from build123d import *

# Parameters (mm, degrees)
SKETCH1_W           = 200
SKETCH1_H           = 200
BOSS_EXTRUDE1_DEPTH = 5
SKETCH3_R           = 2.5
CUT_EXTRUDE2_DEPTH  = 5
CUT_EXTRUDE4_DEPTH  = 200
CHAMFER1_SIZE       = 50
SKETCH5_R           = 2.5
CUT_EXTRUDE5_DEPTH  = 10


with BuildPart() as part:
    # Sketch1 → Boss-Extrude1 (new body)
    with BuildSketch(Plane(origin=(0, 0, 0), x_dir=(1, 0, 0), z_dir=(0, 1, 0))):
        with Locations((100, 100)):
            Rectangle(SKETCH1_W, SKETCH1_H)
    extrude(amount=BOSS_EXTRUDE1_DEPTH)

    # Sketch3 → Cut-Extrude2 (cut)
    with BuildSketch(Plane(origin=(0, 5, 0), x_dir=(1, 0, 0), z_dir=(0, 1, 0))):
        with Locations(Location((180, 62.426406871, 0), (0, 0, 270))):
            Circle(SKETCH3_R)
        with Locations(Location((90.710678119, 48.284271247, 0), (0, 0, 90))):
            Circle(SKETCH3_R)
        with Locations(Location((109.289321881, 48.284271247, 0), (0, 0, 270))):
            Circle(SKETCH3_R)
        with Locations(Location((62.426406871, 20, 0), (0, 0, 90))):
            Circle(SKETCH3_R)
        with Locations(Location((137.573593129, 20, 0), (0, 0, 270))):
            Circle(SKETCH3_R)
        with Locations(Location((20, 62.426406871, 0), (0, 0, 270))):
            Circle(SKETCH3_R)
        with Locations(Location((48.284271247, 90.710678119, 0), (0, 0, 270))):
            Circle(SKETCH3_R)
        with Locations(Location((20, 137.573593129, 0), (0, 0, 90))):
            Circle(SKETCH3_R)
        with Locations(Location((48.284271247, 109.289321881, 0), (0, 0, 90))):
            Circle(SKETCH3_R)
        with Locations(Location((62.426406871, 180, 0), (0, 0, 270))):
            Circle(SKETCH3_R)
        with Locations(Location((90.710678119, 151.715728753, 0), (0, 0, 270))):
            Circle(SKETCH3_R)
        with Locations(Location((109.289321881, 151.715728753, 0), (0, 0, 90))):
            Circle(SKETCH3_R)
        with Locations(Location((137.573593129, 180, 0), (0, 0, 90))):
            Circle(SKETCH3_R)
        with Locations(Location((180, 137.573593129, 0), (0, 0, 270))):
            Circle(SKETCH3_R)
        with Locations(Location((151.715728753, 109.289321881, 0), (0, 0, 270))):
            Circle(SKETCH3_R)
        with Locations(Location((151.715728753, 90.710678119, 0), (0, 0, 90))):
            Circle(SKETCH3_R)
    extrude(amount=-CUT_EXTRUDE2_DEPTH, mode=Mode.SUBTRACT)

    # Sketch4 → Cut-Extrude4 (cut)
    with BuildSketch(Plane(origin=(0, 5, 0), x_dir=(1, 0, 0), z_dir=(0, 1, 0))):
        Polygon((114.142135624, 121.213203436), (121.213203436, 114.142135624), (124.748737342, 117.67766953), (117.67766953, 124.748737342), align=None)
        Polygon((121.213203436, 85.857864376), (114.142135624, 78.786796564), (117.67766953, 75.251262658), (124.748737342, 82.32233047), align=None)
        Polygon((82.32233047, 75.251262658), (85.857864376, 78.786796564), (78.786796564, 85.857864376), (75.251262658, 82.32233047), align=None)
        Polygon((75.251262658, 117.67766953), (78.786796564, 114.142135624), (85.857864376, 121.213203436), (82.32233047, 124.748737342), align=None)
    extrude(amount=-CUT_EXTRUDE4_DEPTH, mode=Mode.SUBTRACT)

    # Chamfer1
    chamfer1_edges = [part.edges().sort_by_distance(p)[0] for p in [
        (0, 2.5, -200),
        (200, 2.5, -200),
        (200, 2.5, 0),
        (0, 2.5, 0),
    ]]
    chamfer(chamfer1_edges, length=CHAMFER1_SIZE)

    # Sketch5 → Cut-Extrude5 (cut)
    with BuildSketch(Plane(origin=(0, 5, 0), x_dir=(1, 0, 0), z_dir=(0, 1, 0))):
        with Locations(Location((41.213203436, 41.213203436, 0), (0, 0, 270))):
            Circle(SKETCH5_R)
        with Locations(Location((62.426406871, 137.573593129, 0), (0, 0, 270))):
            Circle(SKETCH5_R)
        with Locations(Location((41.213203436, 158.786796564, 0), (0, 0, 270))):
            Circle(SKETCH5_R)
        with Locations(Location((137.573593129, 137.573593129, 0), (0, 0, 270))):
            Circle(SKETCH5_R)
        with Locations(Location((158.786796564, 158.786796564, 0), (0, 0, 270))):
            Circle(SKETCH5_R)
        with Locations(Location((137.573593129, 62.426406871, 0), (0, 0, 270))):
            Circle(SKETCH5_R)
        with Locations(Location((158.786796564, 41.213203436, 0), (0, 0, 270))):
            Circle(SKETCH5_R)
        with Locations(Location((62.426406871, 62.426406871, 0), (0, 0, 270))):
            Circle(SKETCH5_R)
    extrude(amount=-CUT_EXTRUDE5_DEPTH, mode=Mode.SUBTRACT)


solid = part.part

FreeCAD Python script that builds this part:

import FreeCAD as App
import Part
import Sketcher

V = App.Vector


def edges_at(feature, points):
    """Names of the edges that pass closest to the given points."""
    edges = feature.Shape.Edges
    near = lambda p: min(range(len(edges)), key=lambda i: edges[i].distToShape(Part.Vertex(*p))[0])
    return sorted({f"Edge{near(p) + 1}" for p in points})


def add_polygon(sketch, points):
    """Adds a closed chain of lines whose ends are joined by coincident constraints."""
    first, n = sketch.GeometryCount, len(points)
    for a, b in zip(points, points[1:] + points[:1]):
        sketch.addGeometry(Part.LineSegment(App.Vector(*a, 0), App.Vector(*b, 0)), False)
    for i in range(n):
        sketch.addConstraint(Sketcher.Constraint("Coincident", first + i, 2, first + (i + 1) % n, 1))

doc = App.newDocument("Part")
params = doc.addObject("Spreadsheet::Sheet", "Params")
for row, (alias, value) in enumerate([
    ("sketch1_width", "200 mm"),
    ("pad1_length", "5 mm"),
    ("sketch2_diameter", "5 mm"),
    ("pocket1_length", "5 mm"),
    ("sketch3_length", "10 mm"),
    ("sketch3_length2", "5 mm"),
    ("pocket2_length", "200 mm"),
    ("chamfer_size", "50 mm"),
    ("sketch4_diameter", "5 mm"),
    ("pocket3_length", "10 mm"),
], start=1):
    params.set(f"A{row}", alias)
    params.set(f"B{row}", "=" + value)
    params.setAlias(f"B{row}", alias)

body = doc.addObject("PartDesign::Body", "Body")

# Sketch on XZ plane
sketch1 = body.newObject("Sketcher::SketchObject", "Sketch")
sketch1.AttachmentSupport = (doc.getObject("XZ_Plane"), [""])
sketch1.MapMode = "FlatFace"
add_polygon(sketch1, [(0, -200), (0, 0), (200, 0), (200, -200)])  # lines 0-3
sketch1.addConstraint([
    Sketcher.Constraint("Vertical", 0),
    Sketcher.Constraint("Horizontal", 1),
    Sketcher.Constraint("Vertical", 2),
    Sketcher.Constraint("Horizontal", 3),
    Sketcher.Constraint("Coincident", 0, 2, -1, 1),
    Sketcher.Constraint("Equal", 3, 0),
    Sketcher.Constraint("DistanceX", 1, 1, 1, 2, 200.0),
])
sketch1.setExpression("Constraints[10]", "Params.sketch1_width")
pad1 = body.newObject("PartDesign::Pad", "Pad")
pad1.Profile = sketch1
pad1.setExpression("Length", "Params.pad1_length")
pad1.Reversed = True

# Sketch on XZ plane
sketch2 = body.newObject("Sketcher::SketchObject", "Sketch001")
sketch2.AttachmentSupport = (doc.getObject("XZ_Plane"), [""])
sketch2.MapMode = "FlatFace"
sketch2.AttachmentOffset = App.Placement(V(0, 0, -5), App.Rotation())
sketch2.addGeometry([
    Part.Circle(V(180, -62.4, 0), V(0, 0, 1), 2.5),  # 0
    Part.Circle(V(90.7, -48.3, 0), V(0, 0, 1), 2.5),  # 1
    Part.Circle(V(109.3, -48.3, 0), V(0, 0, 1), 2.5),  # 2
    Part.Circle(V(62.4, -20, 0), V(0, 0, 1), 2.5),  # 3
    Part.Circle(V(137.6, -20, 0), V(0, 0, 1), 2.5),  # 4
    Part.Circle(V(20, -62.4, 0), V(0, 0, 1), 2.5),  # 5
    Part.Circle(V(48.3, -90.7, 0), V(0, 0, 1), 2.5),  # 6
    Part.Circle(V(20, -137.6, 0), V(0, 0, 1), 2.5),  # 7
    Part.Circle(V(48.3, -109.3, 0), V(0, 0, 1), 2.5),  # 8
    Part.Circle(V(62.4, -180, 0), V(0, 0, 1), 2.5),  # 9
    Part.Circle(V(90.7, -151.7, 0), V(0, 0, 1), 2.5),  # 10
    Part.Circle(V(109.3, -151.7, 0), V(0, 0, 1), 2.5),  # 11
    Part.Circle(V(137.6, -180, 0), V(0, 0, 1), 2.5),  # 12
    Part.Circle(V(180, -137.6, 0), V(0, 0, 1), 2.5),  # 13
    Part.Circle(V(151.7, -109.3, 0), V(0, 0, 1), 2.5),  # 14
    Part.Circle(V(151.7, -90.7, 0), V(0, 0, 1), 2.5),  # 15
], False)
sketch2.addConstraint([
    Sketcher.Constraint("Equal", 0, 1),
    Sketcher.Constraint("Equal", 1, 2),
    Sketcher.Constraint("Equal", 2, 3),
    Sketcher.Constraint("Equal", 3, 4),
    Sketcher.Constraint("Equal", 4, 5),
    Sketcher.Constraint("Equal", 5, 6),
    Sketcher.Constraint("Equal", 6, 7),
    Sketcher.Constraint("Equal", 7, 8),
    Sketcher.Constraint("Equal", 8, 9),
    Sketcher.Constraint("Equal", 9, 10),
    Sketcher.Constraint("Equal", 10, 11),
    Sketcher.Constraint("Equal", 11, 12),
    Sketcher.Constraint("Equal", 12, 13),
    Sketcher.Constraint("Equal", 13, 14),
    Sketcher.Constraint("Equal", 14, 15),
    Sketcher.Constraint("Horizontal", 1, 3, 2, 3),
    Sketcher.Constraint("Horizontal", 3, 3, 4, 3),
    Sketcher.Constraint("Horizontal", 0, 3, 5, 3),
    Sketcher.Constraint("Horizontal", 10, 3, 11, 3),
    Sketcher.Constraint("Horizontal", 9, 3, 12, 3),
    Sketcher.Constraint("Horizontal", 7, 3, 13, 3),
    Sketcher.Constraint("Horizontal", 8, 3, 14, 3),
    Sketcher.Constraint("Horizontal", 6, 3, 15, 3),
    Sketcher.Constraint("Vertical", 5, 3, 7, 3),
    Sketcher.Constraint("Vertical", 6, 3, 8, 3),
    Sketcher.Constraint("Vertical", 3, 3, 9, 3),
    Sketcher.Constraint("Vertical", 1, 3, 10, 3),
    Sketcher.Constraint("Vertical", 2, 3, 11, 3),
    Sketcher.Constraint("Vertical", 4, 3, 12, 3),
    Sketcher.Constraint("Vertical", 0, 3, 13, 3),
    Sketcher.Constraint("Vertical", 14, 3, 15, 3),
    Sketcher.Constraint("Diameter", 0, 5.0),
    Sketcher.Constraint("DistanceX", -1, 1, 0, 3, 180.0),
    Sketcher.Constraint("DistanceY", 3, 3, -1, 1, 20.0),
    Sketcher.Constraint("DistanceX", -1, 1, 5, 3, 20.0),
    Sketcher.Constraint("DistanceY", 9, 3, -1, 1, 180.0),
    Sketcher.Constraint("DistanceX", -1, 1, 1, 3, 90.710678),
    Sketcher.Constraint("DistanceY", 1, 3, -1, 1, 48.284271),
    Sketcher.Constraint("DistanceX", -1, 1, 2, 3, 109.289322),
    Sketcher.Constraint("DistanceX", -1, 1, 6, 3, 48.284271),
    Sketcher.Constraint("DistanceY", 6, 3, -1, 1, 90.710678),
    Sketcher.Constraint("DistanceY", 8, 3, -1, 1, 109.289322),
    Sketcher.Constraint("DistanceY", 10, 3, -1, 1, 151.715729),
    Sketcher.Constraint("DistanceX", -1, 1, 14, 3, 151.715729),
    Sketcher.Constraint("DistanceX", 3, 3, 1, 3, 28.284271),
    Sketcher.Constraint("DistanceX", 2, 3, 4, 3, 28.284271),
    Sketcher.Constraint("DistanceY", 6, 3, 5, 3, 28.284271),
    Sketcher.Constraint("DistanceY", 7, 3, 1, 3, 89.289322),
])
sketch2.setExpression("Constraints[31]", "Params.sketch2_diameter")
pocket1 = body.newObject("PartDesign::Pocket", "Pocket")
pocket1.Profile = sketch2
pocket1.setExpression("Length", "Params.pocket1_length")
pocket1.Reversed = True

# Sketch on XZ plane
sketch3 = body.newObject("Sketcher::SketchObject", "Sketch002")
sketch3.AttachmentSupport = (doc.getObject("XZ_Plane"), [""])
sketch3.MapMode = "FlatFace"
sketch3.AttachmentOffset = App.Placement(V(0, 0, -5), App.Rotation())
add_polygon(sketch3, [(114, -121), (121, -114), (125, -118), (118, -125)])  # lines 0-3
add_polygon(sketch3, [(121, -86), (114, -79), (118, -75), (125, -82)])  # lines 4-7
add_polygon(sketch3, [(82, -75), (86, -79), (79, -86), (75, -82)])  # lines 8-11
add_polygon(sketch3, [(75, -118), (79, -114), (86, -121), (82, -125)])  # lines 12-15
sketch3.addConstraint([
    Sketcher.Constraint("Perpendicular", 0, 1),
    Sketcher.Constraint("Perpendicular", 1, 2),
    Sketcher.Constraint("Perpendicular", 2, 3),
    Sketcher.Constraint("Parallel", 3, 4),
    Sketcher.Constraint("Perpendicular", 4, 5),
    Sketcher.Constraint("Perpendicular", 5, 6),
    Sketcher.Constraint("Perpendicular", 6, 7),
    Sketcher.Constraint("Perpendicular", 7, 8),
    Sketcher.Constraint("Perpendicular", 8, 9),
    Sketcher.Constraint("Perpendicular", 9, 10),
    Sketcher.Constraint("Perpendicular", 10, 11),
    Sketcher.Constraint("Parallel", 11, 12),
    Sketcher.Constraint("Perpendicular", 12, 13),
    Sketcher.Constraint("Perpendicular", 13, 14),
    Sketcher.Constraint("Perpendicular", 14, 15),
    Sketcher.Constraint("Horizontal", 4, 2, 8, 2),
    Sketcher.Constraint("Horizontal", 7, 2, 9, 2),
    Sketcher.Constraint("Horizontal", 6, 2, 10, 2),
    Sketcher.Constraint("Horizontal", 0, 2, 12, 2),
    Sketcher.Constraint("Horizontal", 3, 2, 13, 2),
    Sketcher.Constraint("Horizontal", 2, 2, 14, 2),
    Sketcher.Constraint("Vertical", 3, 2, 4, 2),
    Sketcher.Constraint("Vertical", 2, 2, 5, 2),
    Sketcher.Constraint("Vertical", 1, 2, 6, 2),
    Sketcher.Constraint("Vertical", 9, 2, 12, 2),
    Sketcher.Constraint("Vertical", 8, 2, 13, 2),
    Sketcher.Constraint("Distance", 0, 10.0),
    Sketcher.Constraint("Distance", 1, 5.0),
    Sketcher.Constraint("DistanceY", 1, 2, -1, 1, 117.67767),
    Sketcher.Constraint("DistanceX", -1, 1, 2, 2, 117.67767),
    Sketcher.Constraint("DistanceY", 6, 2, -1, 1, 82.32233),
    Sketcher.Constraint("DistanceX", -1, 1, 11, 2, 82.32233),
])
sketch3.setExpression("Constraints[42]", "Params.sketch3_length")
sketch3.setExpression("Constraints[43]", "Params.sketch3_length2")
pocket2 = body.newObject("PartDesign::Pocket", "Pocket001")
pocket2.Profile = sketch3
pocket2.setExpression("Length", "Params.pocket2_length")
pocket2.Reversed = True
doc.recompute()

chamfer = body.newObject("PartDesign::Chamfer", "Chamfer")
chamfer.Base = (pocket2, edges_at(pocket2, [
    (0, 2.5, -200),
    (200, 2.5, -200),
    (200, 2.5, 0),
    (0, 2.5, 0),
]))
chamfer.setExpression("Size", "Params.chamfer_size")

# Sketch on XZ plane
sketch4 = body.newObject("Sketcher::SketchObject", "Sketch003")
sketch4.AttachmentSupport = (doc.getObject("XZ_Plane"), [""])
sketch4.MapMode = "FlatFace"
sketch4.AttachmentOffset = App.Placement(V(0, 0, -5), App.Rotation())
sketch4.addGeometry([
    Part.Circle(V(41.2, -41.2, 0), V(0, 0, 1), 2.5),  # 0
    Part.Circle(V(62.4, -137.6, 0), V(0, 0, 1), 2.5),  # 1
    Part.Circle(V(41.2, -158.8, 0), V(0, 0, 1), 2.5),  # 2
    Part.Circle(V(137.6, -137.6, 0), V(0, 0, 1), 2.5),  # 3
    Part.Circle(V(158.8, -158.8, 0), V(0, 0, 1), 2.5),  # 4
    Part.Circle(V(137.6, -62.4, 0), V(0, 0, 1), 2.5),  # 5
    Part.Circle(V(158.8, -41.2, 0), V(0, 0, 1), 2.5),  # 6
    Part.Circle(V(62.4, -62.4, 0), V(0, 0, 1), 2.5),  # 7
], False)
sketch4.addConstraint([
    Sketcher.Constraint("Equal", 0, 1),
    Sketcher.Constraint("Equal", 1, 2),
    Sketcher.Constraint("Equal", 2, 3),
    Sketcher.Constraint("Equal", 3, 4),
    Sketcher.Constraint("Equal", 4, 5),
    Sketcher.Constraint("Equal", 5, 6),
    Sketcher.Constraint("Equal", 6, 7),
    Sketcher.Constraint("Horizontal", 1, 3, 3, 3),
    Sketcher.Constraint("Horizontal", 2, 3, 4, 3),
    Sketcher.Constraint("Horizontal", 0, 3, 6, 3),
    Sketcher.Constraint("Horizontal", 5, 3, 7, 3),
    Sketcher.Constraint("Vertical", 0, 3, 2, 3),
    Sketcher.Constraint("Vertical", 3, 3, 5, 3),
    Sketcher.Constraint("Vertical", 4, 3, 6, 3),
    Sketcher.Constraint("Vertical", 1, 3, 7, 3),
    Sketcher.Constraint("Diameter", 0, 5.0),
    Sketcher.Constraint("DistanceY", 1, 3, 0, 3, 96.36039),
    Sketcher.Constraint("DistanceX", 2, 3, 3, 3, 96.36039),
    Sketcher.Constraint("DistanceX", 1, 3, 4, 3, 96.36039),
    Sketcher.Constraint("DistanceY", 4, 3, 5, 3, 96.36039),
    Sketcher.Constraint("DistanceX", -1, 1, 0, 3, 41.213203),
    Sketcher.Constraint("DistanceY", 0, 3, -1, 1, 41.213203),
    Sketcher.Constraint("DistanceX", -1, 1, 1, 3, 62.426407),
    Sketcher.Constraint("DistanceY", 2, 3, -1, 1, 158.786797),
])
sketch4.setExpression("Constraints[15]", "Params.sketch4_diameter")
pocket3 = body.newObject("PartDesign::Pocket", "Pocket002")
pocket3.Profile = sketch4
pocket3.setExpression("Length", "Params.pocket3_length")
pocket3.Reversed = True

doc.recompute()
